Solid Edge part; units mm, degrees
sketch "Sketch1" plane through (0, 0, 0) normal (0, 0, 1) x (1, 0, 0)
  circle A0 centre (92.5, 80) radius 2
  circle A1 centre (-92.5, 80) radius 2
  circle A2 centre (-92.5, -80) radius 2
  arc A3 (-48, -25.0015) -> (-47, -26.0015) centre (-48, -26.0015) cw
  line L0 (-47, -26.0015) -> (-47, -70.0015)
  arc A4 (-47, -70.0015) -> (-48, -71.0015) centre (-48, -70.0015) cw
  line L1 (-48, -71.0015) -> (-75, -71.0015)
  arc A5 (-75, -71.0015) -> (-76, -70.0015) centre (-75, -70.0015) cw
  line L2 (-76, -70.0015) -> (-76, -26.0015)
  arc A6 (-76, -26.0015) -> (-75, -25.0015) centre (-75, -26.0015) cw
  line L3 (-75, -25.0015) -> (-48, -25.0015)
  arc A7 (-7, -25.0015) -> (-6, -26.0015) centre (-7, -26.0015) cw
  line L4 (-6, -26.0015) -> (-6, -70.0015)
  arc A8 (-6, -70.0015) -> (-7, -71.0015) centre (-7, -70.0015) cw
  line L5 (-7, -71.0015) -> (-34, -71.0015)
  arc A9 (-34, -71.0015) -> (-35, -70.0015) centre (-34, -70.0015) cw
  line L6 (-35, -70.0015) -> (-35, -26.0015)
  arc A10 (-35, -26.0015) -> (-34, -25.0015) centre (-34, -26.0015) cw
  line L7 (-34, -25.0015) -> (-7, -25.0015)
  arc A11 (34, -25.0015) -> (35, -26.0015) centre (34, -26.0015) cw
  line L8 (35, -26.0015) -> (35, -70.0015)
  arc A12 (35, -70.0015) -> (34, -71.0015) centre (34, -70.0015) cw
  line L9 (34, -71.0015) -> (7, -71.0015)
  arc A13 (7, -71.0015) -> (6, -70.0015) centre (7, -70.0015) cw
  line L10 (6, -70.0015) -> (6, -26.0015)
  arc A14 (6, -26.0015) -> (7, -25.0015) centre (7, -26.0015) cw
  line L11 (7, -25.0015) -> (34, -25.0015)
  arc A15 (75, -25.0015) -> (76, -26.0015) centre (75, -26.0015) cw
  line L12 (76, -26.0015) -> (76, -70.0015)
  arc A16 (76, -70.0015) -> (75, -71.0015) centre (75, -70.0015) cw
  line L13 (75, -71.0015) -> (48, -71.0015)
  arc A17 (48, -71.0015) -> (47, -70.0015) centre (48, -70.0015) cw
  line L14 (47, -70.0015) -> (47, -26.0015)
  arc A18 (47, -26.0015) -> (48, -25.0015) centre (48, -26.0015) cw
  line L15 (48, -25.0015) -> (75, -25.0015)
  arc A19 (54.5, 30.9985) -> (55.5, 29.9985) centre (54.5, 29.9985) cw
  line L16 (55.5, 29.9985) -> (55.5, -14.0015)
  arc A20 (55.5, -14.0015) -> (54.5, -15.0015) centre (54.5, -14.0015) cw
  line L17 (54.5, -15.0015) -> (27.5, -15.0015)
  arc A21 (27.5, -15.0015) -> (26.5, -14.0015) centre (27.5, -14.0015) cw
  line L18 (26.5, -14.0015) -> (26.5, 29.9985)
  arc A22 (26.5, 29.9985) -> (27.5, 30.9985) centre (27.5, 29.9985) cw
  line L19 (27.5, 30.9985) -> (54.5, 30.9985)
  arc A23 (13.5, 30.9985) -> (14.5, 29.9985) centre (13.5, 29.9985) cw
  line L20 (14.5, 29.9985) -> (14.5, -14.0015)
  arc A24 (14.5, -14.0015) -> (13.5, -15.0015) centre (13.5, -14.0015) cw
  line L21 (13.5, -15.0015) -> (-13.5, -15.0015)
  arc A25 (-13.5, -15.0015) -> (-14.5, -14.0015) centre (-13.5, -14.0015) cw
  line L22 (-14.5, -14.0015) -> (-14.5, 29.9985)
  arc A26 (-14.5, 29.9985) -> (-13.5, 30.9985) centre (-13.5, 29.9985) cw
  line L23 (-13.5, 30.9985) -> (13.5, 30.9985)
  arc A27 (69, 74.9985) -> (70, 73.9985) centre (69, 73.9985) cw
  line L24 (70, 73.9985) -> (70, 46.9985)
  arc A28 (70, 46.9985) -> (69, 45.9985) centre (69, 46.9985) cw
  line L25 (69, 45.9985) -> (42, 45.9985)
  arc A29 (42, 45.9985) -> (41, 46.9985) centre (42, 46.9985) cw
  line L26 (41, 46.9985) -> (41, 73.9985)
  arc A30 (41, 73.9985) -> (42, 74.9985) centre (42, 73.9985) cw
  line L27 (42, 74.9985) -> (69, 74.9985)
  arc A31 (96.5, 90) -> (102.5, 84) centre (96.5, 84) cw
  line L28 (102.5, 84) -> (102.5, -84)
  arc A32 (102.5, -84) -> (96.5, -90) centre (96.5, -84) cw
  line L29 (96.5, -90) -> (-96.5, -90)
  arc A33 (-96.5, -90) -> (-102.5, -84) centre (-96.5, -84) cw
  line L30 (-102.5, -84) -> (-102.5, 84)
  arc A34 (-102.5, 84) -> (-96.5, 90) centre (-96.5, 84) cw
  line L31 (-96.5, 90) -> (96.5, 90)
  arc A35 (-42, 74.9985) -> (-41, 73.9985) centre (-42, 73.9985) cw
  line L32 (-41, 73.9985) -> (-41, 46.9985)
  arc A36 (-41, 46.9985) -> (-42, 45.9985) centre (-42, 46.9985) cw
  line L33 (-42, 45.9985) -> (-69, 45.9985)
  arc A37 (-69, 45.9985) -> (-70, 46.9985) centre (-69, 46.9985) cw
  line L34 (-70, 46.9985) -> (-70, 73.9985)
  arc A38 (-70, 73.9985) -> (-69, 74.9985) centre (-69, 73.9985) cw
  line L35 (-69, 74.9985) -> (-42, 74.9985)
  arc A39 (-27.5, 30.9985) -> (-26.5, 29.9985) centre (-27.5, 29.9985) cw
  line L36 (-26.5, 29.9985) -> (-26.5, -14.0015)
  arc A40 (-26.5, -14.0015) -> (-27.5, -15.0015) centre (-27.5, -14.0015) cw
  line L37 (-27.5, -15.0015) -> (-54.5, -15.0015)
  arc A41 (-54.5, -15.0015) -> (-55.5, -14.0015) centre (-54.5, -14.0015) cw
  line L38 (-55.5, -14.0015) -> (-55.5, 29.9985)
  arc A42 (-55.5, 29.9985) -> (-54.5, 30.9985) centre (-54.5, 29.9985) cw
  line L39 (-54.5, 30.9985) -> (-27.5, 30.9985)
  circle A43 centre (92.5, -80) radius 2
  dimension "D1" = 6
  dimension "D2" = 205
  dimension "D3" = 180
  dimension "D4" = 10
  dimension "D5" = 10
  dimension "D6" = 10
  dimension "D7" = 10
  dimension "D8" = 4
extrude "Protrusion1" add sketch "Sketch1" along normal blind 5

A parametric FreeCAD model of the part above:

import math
import FreeCAD as App
import Part
import Sketcher

doc = App.newDocument("Part")
body = doc.addObject("PartDesign::Body", "Body")

# Sketch on XY plane
sketch1 = doc.addObject("Sketcher::SketchObject", "Sketch")
body.addObject(sketch1)
sketch1.AttachmentSupport = (doc.XY_Plane, [""])
sketch1.MapMode = "FlatFace"
sketch1.addGeometry([
    Part.ArcOfCircle(Part.Circle(App.Vector(96.5, 84, 0), App.Vector(0, 0, 1), 6), math.radians(0), math.radians(90)),  # 0
    Part.LineSegment(App.Vector(96.5, 90, 0), App.Vector(-96.5, 90, 0)),  # 1
    Part.ArcOfCircle(Part.Circle(App.Vector(-96.5, 84, 0), App.Vector(0, 0, 1), 6), math.radians(90), math.radians(180)),  # 2
    Part.LineSegment(App.Vector(-102.5, 84, 0), App.Vector(-102.5, -84, 0)),  # 3
    Part.ArcOfCircle(Part.Circle(App.Vector(-96.5, -84, 0), App.Vector(0, 0, 1), 6), math.radians(180), math.radians(270)),  # 4
    Part.LineSegment(App.Vector(-96.5, -90, 0), App.Vector(96.5, -90, 0)),  # 5
    Part.ArcOfCircle(Part.Circle(App.Vector(96.5, -84, 0), App.Vector(0, 0, 1), 6), math.radians(-90), math.radians(0)),  # 6
    Part.LineSegment(App.Vector(102.5, -84, 0), App.Vector(102.5, 84, 0)),  # 7
    Part.Circle(App.Vector(-92.5, -80, 0), App.Vector(0, 0, 1), 2),  # 8
    Part.LineSegment(App.Vector(-75, -25, 0), App.Vector(-48, -25, 0)),  # 9
    Part.ArcOfCircle(Part.Circle(App.Vector(-48, -26, 0), App.Vector(0, 0, 1), 1), math.radians(0), math.radians(90)),  # 10
    Part.LineSegment(App.Vector(-47, -26, 0), App.Vector(-47, -70, 0)),  # 11
    Part.ArcOfCircle(Part.Circle(App.Vector(-48, -70, 0), App.Vector(0, 0, 1), 1), math.radians(-90), math.radians(0)),  # 12
    Part.LineSegment(App.Vector(-48, -71, 0), App.Vector(-75, -71, 0)),  # 13
    Part.ArcOfCircle(Part.Circle(App.Vector(-75, -70, 0), App.Vector(0, 0, 1), 1), math.radians(180), math.radians(270)),  # 14
    Part.LineSegment(App.Vector(-76, -70, 0), App.Vector(-76, -26, 0)),  # 15
    Part.ArcOfCircle(Part.Circle(App.Vector(-75, -26, 0), App.Vector(0, 0, 1), 1), math.radians(90), math.radians(180)),  # 16
    Part.LineSegment(App.Vector(-34, -25, 0), App.Vector(-7, -25, 0)),  # 17
    Part.ArcOfCircle(Part.Circle(App.Vector(-7, -26, 0), App.Vector(0, 0, 1), 1), math.radians(0), math.radians(90)),  # 18
    Part.LineSegment(App.Vector(-6, -26, 0), App.Vector(-6, -70, 0)),  # 19
    Part.ArcOfCircle(Part.Circle(App.Vector(-7, -70, 0), App.Vector(0, 0, 1), 1), math.radians(-90), math.radians(0)),  # 20
    Part.LineSegment(App.Vector(-7, -71, 0), App.Vector(-34, -71, 0)),  # 21
    Part.ArcOfCircle(Part.Circle(App.Vector(-34, -70, 0), App.Vector(0, 0, 1), 1), math.radians(180), math.radians(270)),  # 22
    Part.LineSegment(App.Vector(-35, -70, 0), App.Vector(-35, -26, 0)),  # 23
    Part.ArcOfCircle(Part.Circle(App.Vector(-34, -26, 0), App.Vector(0, 0, 1), 1), math.radians(90), math.radians(180)),  # 24
    Part.LineSegment(App.Vector(7, -25, 0), App.Vector(34, -25, 0)),  # 25
    Part.ArcOfCircle(Part.Circle(App.Vector(34, -26, 0), App.Vector(0, 0, 1), 1), math.radians(0), math.radians(90)),  # 26
    Part.LineSegment(App.Vector(35, -26, 0), App.Vector(35, -70, 0)),  # 27
    Part.ArcOfCircle(Part.Circle(App.Vector(34, -70, 0), App.Vector(0, 0, 1), 1), math.radians(-90), math.radians(0)),  # 28
    Part.LineSegment(App.Vector(34, -71, 0), App.Vector(7, -71, 0)),  # 29
    Part.ArcOfCircle(Part.Circle(App.Vector(7, -70, 0), App.Vector(0, 0, 1), 1), math.radians(180), math.radians(270)),  # 30
    Part.LineSegment(App.Vector(6, -70, 0), App.Vector(6, -26, 0)),  # 31
    Part.ArcOfCircle(Part.Circle(App.Vector(7, -26, 0), App.Vector(0, 0, 1), 1), math.radians(90), math.radians(180)),  # 32
    Part.Circle(App.Vector(92.5, -80, 0), App.Vector(0, 0, 1), 2),  # 33
    Part.LineSegment(App.Vector(48, -25, 0), App.Vector(75, -25, 0)),  # 34
    Part.ArcOfCircle(Part.Circle(App.Vector(75, -26, 0), App.Vector(0, 0, 1), 1), math.radians(0), math.radians(90)),  # 35
    Part.LineSegment(App.Vector(76, -26, 0), App.Vector(76, -70, 0)),  # 36
    Part.ArcOfCircle(Part.Circle(App.Vector(75, -70, 0), App.Vector(0, 0, 1), 1), math.radians(-90), math.radians(0)),  # 37
    Part.LineSegment(App.Vector(75, -71, 0), App.Vector(48, -71, 0)),  # 38
    Part.ArcOfCircle(Part.Circle(App.Vector(48, -70, 0), App.Vector(0, 0, 1), 1), math.radians(180), math.radians(270)),  # 39
    Part.LineSegment(App.Vector(47, -70, 0), App.Vector(47, -26, 0)),  # 40
    Part.ArcOfCircle(Part.Circle(App.Vector(48, -26, 0), App.Vector(0, 0, 1), 1), math.radians(90), math.radians(180)),  # 41
    Part.LineSegment(App.Vector(-54.5, 31, 0), App.Vector(-27.5, 31, 0)),  # 42
    Part.ArcOfCircle(Part.Circle(App.Vector(-27.5, 30, 0), App.Vector(0, 0, 1), 1), math.radians(0), math.radians(90)),  # 43
    Part.LineSegment(App.Vector(-26.5, 30, 0), App.Vector(-26.5, -14, 0)),  # 44
    Part.ArcOfCircle(Part.Circle(App.Vector(-27.5, -14, 0), App.Vector(0, 0, 1), 1), math.radians(-90), math.radians(0)),  # 45
    Part.LineSegment(App.Vector(-27.5, -15, 0), App.Vector(-54.5, -15, 0)),  # 46
    Part.ArcOfCircle(Part.Circle(App.Vector(-54.5, -14, 0), App.Vector(0, 0, 1), 1), math.radians(180), math.radians(270)),  # 47
    Part.LineSegment(App.Vector(-55.5, -14, 0), App.Vector(-55.5, 30, 0)),  # 48
    Part.ArcOfCircle(Part.Circle(App.Vector(-54.5, 30, 0), App.Vector(0, 0, 1), 1), math.radians(90), math.radians(180)),  # 49
    Part.LineSegment(App.Vector(-69, 75, 0), App.Vector(-42, 75, 0)),  # 50
    Part.ArcOfCircle(Part.Circle(App.Vector(-42, 74, 0), App.Vector(0, 0, 1), 1), math.radians(0), math.radians(90)),  # 51
    Part.LineSegment(App.Vector(-41, 74, 0), App.Vector(-41, 47, 0)),  # 52
    Part.ArcOfCircle(Part.Circle(App.Vector(-42, 47, 0), App.Vector(0, 0, 1), 1), math.radians(-90), math.radians(0)),  # 53
    Part.LineSegment(App.Vector(-42, 46, 0), App.Vector(-69, 46, 0)),  # 54
    Part.ArcOfCircle(Part.Circle(App.Vector(-69, 47, 0), App.Vector(0, 0, 1), 1), math.radians(180), math.radians(270)),  # 55
    Part.LineSegment(App.Vector(-70, 47, 0), App.Vector(-70, 74, 0)),  # 56
    Part.ArcOfCircle(Part.Circle(App.Vector(-69, 74, 0), App.Vector(0, 0, 1), 1), math.radians(90), math.radians(180)),  # 57
    Part.Circle(App.Vector(-92.5, 80, 0), App.Vector(0, 0, 1), 2),  # 58
    Part.LineSegment(App.Vector(-13.5, 31, 0), App.Vector(13.5, 31, 0)),  # 59
    Part.ArcOfCircle(Part.Circle(App.Vector(13.5, 30, 0), App.Vector(0, 0, 1), 1), math.radians(0), math.radians(90)),  # 60
    Part.LineSegment(App.Vector(14.5, 30, 0), App.Vector(14.5, -14, 0)),  # 61
    Part.ArcOfCircle(Part.Circle(App.Vector(13.5, -14, 0), App.Vector(0, 0, 1), 1), math.radians(-90), math.radians(0)),  # 62
    Part.LineSegment(App.Vector(13.5, -15, 0), App.Vector(-13.5, -15, 0)),  # 63
    Part.ArcOfCircle(Part.Circle(App.Vector(-13.5, -14, 0), App.Vector(0, 0, 1), 1), math.radians(180), math.radians(270)),  # 64
    Part.LineSegment(App.Vector(-14.5, -14, 0), App.Vector(-14.5, 30, 0)),  # 65
    Part.ArcOfCircle(Part.Circle(App.Vector(-13.5, 30, 0), App.Vector(0, 0, 1), 1), math.radians(90), math.radians(180)),  # 66
    Part.LineSegment(App.Vector(27.5, 31, 0), App.Vector(54.5, 31, 0)),  # 67
    Part.ArcOfCircle(Part.Circle(App.Vector(54.5, 30, 0), App.Vector(0, 0, 1), 1), math.radians(0), math.radians(90)),  # 68
    Part.LineSegment(App.Vector(55.5, 30, 0), App.Vector(55.5, -14, 0)),  # 69
    Part.ArcOfCircle(Part.Circle(App.Vector(54.5, -14, 0), App.Vector(0, 0, 1), 1), math.radians(-90), math.radians(0)),  # 70
    Part.LineSegment(App.Vector(54.5, -15, 0), App.Vector(27.5, -15, 0)),  # 71
    Part.ArcOfCircle(Part.Circle(App.Vector(27.5, -14, 0), App.Vector(0, 0, 1), 1), math.radians(180), math.radians(270)),  # 72
    Part.LineSegment(App.Vector(26.5, -14, 0), App.Vector(26.5, 30, 0)),  # 73
    Part.ArcOfCircle(Part.Circle(App.Vector(27.5, 30, 0), App.Vector(0, 0, 1), 1), math.radians(90), math.radians(180)),  # 74
    Part.LineSegment(App.Vector(42, 75, 0), App.Vector(69, 75, 0)),  # 75
    Part.ArcOfCircle(Part.Circle(App.Vector(69, 74, 0), App.Vector(0, 0, 1), 1), math.radians(0), math.radians(90)),  # 76
    Part.LineSegment(App.Vector(70, 74, 0), App.Vector(70, 47, 0)),  # 77
    Part.ArcOfCircle(Part.Circle(App.Vector(69, 47, 0), App.Vector(0, 0, 1), 1), math.radians(-90), math.radians(0)),  # 78
    Part.LineSegment(App.Vector(69, 46, 0), App.Vector(42, 46, 0)),  # 79
    Part.ArcOfCircle(Part.Circle(App.Vector(42, 47, 0), App.Vector(0, 0, 1), 1), math.radians(180), math.radians(270)),  # 80
    Part.LineSegment(App.Vector(41, 47, 0), App.Vector(41, 74, 0)),  # 81
    Part.ArcOfCircle(Part.Circle(App.Vector(42, 74, 0), App.Vector(0, 0, 1), 1), math.radians(90), math.radians(180)),  # 82
    Part.Circle(App.Vector(92.5, 80, 0), App.Vector(0, 0, 1), 2),  # 83
], False)
sketch1.addConstraint([
    Sketcher.Constraint("Tangent", 0, 2, 1, 1),
    Sketcher.Constraint("Tangent", 1, 2, 2, 1),
    Sketcher.Constraint("Tangent", 2, 2, 3, 1),
    Sketcher.Constraint("Tangent", 3, 2, 4, 1),
    Sketcher.Constraint("Tangent", 4, 2, 5, 1),
    Sketcher.Constraint("Tangent", 5, 2, 6, 1),
    Sketcher.Constraint("Tangent", 6, 2, 7, 1),
    Sketcher.Constraint("Tangent", 7, 2, 0, 1),
    Sketcher.Constraint("Tangent", 9, 2, 10, 2),
    Sketcher.Constraint("Tangent", 10, 1, 11, 1),
    Sketcher.Constraint("Tangent", 11, 2, 12, 2),
    Sketcher.Constraint("Tangent", 12, 1, 13, 1),
    Sketcher.Constraint("Tangent", 13, 2, 14, 2),
    Sketcher.Constraint("Tangent", 14, 1, 15, 1),
    Sketcher.Constraint("Tangent", 15, 2, 16, 2),
    Sketcher.Constraint("Tangent", 16, 1, 9, 1),
    Sketcher.Constraint("Tangent", 17, 2, 18, 2),
    Sketcher.Constraint("Tangent", 18, 1, 19, 1),
    Sketcher.Constraint("Tangent", 19, 2, 20, 2),
    Sketcher.Constraint("Tangent", 20, 1, 21, 1),
    Sketcher.Constraint("Tangent", 21, 2, 22, 2),
    Sketcher.Constraint("Tangent", 22, 1, 23, 1),
    Sketcher.Constraint("Tangent", 23, 2, 24, 2),
    Sketcher.Constraint("Tangent", 24, 1, 17, 1),
    Sketcher.Constraint("Tangent", 25, 2, 26, 2),
    Sketcher.Constraint("Tangent", 26, 1, 27, 1),
    Sketcher.Constraint("Tangent", 27, 2, 28, 2),
    Sketcher.Constraint("Tangent", 28, 1, 29, 1),
    Sketcher.Constraint("Tangent", 29, 2, 30, 2),
    Sketcher.Constraint("Tangent", 30, 1, 31, 1),
    Sketcher.Constraint("Tangent", 31, 2, 32, 2),
    Sketcher.Constraint("Tangent", 32, 1, 25, 1),
    Sketcher.Constraint("Tangent", 34, 2, 35, 2),
    Sketcher.Constraint("Tangent", 35, 1, 36, 1),
    Sketcher.Constraint("Tangent", 36, 2, 37, 2),
    Sketcher.Constraint("Tangent", 37, 1, 38, 1),
    Sketcher.Constraint("Tangent", 38, 2, 39, 2),
    Sketcher.Constraint("Tangent", 39, 1, 40, 1),
    Sketcher.Constraint("Tangent", 40, 2, 41, 2),
    Sketcher.Constraint("Tangent", 41, 1, 34, 1),
    Sketcher.Constraint("Tangent", 42, 2, 43, 2),
    Sketcher.Constraint("Tangent", 43, 1, 44, 1),
    Sketcher.Constraint("Tangent", 44, 2, 45, 2),
    Sketcher.Constraint("Tangent", 45, 1, 46, 1),
    Sketcher.Constraint("Tangent", 46, 2, 47, 2),
    Sketcher.Constraint("Tangent", 47, 1, 48, 1),
    Sketcher.Constraint("Tangent", 48, 2, 49, 2),
    Sketcher.Constraint("Tangent", 49, 1, 42, 1),
    Sketcher.Constraint("Tangent", 50, 2, 51, 2),
    Sketcher.Constraint("Tangent", 51, 1, 52, 1),
    Sketcher.Constraint("Tangent", 52, 2, 53, 2),
    Sketcher.Constraint("Tangent", 53, 1, 54, 1),
    Sketcher.Constraint("Tangent", 54, 2, 55, 2),
    Sketcher.Constraint("Tangent", 55, 1, 56, 1),
    Sketcher.Constraint("Tangent", 56, 2, 57, 2),
    Sketcher.Constraint("Tangent", 57, 1, 50, 1),
    Sketcher.Constraint("Tangent", 59, 2, 60, 2),
    Sketcher.Constraint("Tangent", 60, 1, 61, 1),
    Sketcher.Constraint("Tangent", 61, 2, 62, 2),
    Sketcher.Constraint("Tangent", 62, 1, 63, 1),
    Sketcher.Constraint("Tangent", 63, 2, 64, 2),
    Sketcher.Constraint("Tangent", 64, 1, 65, 1),
    Sketcher.Constraint("Tangent", 65, 2, 66, 2),
    Sketcher.Constraint("Tangent", 66, 1, 59, 1),
    Sketcher.Constraint("Tangent", 67, 2, 68, 2),
    Sketcher.Constraint("Tangent", 68, 1, 69, 1),
    Sketcher.Constraint("Tangent", 69, 2, 70, 2),
    Sketcher.Constraint("Tangent", 70, 1, 71, 1),
    Sketcher.Constraint("Tangent", 71, 2, 72, 2),
    Sketcher.Constraint("Tangent", 72, 1, 73, 1),
    Sketcher.Constraint("Tangent", 73, 2, 74, 2),
    Sketcher.Constraint("Tangent", 74, 1, 67, 1),
    Sketcher.Constraint("Tangent", 75, 2, 76, 2),
    Sketcher.Constraint("Tangent", 76, 1, 77, 1),
    Sketcher.Constraint("Tangent", 77, 2, 78, 2),
    Sketcher.Constraint("Tangent", 78, 1, 79, 1),
    Sketcher.Constraint("Tangent", 79, 2, 80, 2),
    Sketcher.Constraint("Tangent", 80, 1, 81, 1),
    Sketcher.Constraint("Tangent", 81, 2, 82, 2),
    Sketcher.Constraint("Tangent", 82, 1, 75, 1),
    Sketcher.Constraint("Horizontal", 1),
    Sketcher.Constraint("Vertical", 3),
    Sketcher.Constraint("Horizontal", 5),
    Sketcher.Constraint("Vertical", 7),
    Sketcher.Constraint("Horizontal", 9),
    Sketcher.Constraint("Vertical", 11),
    Sketcher.Constraint("Horizontal", 13),
    Sketcher.Constraint("Vertical", 15),
    Sketcher.Constraint("Horizontal", 17),
    Sketcher.Constraint("Vertical", 19),
    Sketcher.Constraint("Horizontal", 21),
    Sketcher.Constraint("Vertical", 23),
    Sketcher.Constraint("Horizontal", 25),
    Sketcher.Constraint("Vertical", 27),
    Sketcher.Constraint("Horizontal", 29),
    Sketcher.Constraint("Vertical", 31),
    Sketcher.Constraint("Horizontal", 34),
    Sketcher.Constraint("Vertical", 36),
    Sketcher.Constraint("Horizontal", 38),
    Sketcher.Constraint("Vertical", 40),
    Sketcher.Constraint("Horizontal", 42),
    Sketcher.Constraint("Vertical", 44),
    Sketcher.Constraint("Horizontal", 46),
    Sketcher.Constraint("Vertical", 48),
    Sketcher.Constraint("Horizontal", 50),
    Sketcher.Constraint("Vertical", 52),
    Sketcher.Constraint("Horizontal", 54),
    Sketcher.Constraint("Vertical", 56),
    Sketcher.Constraint("Horizontal", 59),
    Sketcher.Constraint("Vertical", 61),
    Sketcher.Constraint("Horizontal", 63),
    Sketcher.Constraint("Vertical", 65),
    Sketcher.Constraint("Horizontal", 67),
    Sketcher.Constraint("Vertical", 69),
    Sketcher.Constraint("Horizontal", 71),
    Sketcher.Constraint("Vertical", 73),
    Sketcher.Constraint("Horizontal", 75),
    Sketcher.Constraint("Vertical", 77),
    Sketcher.Constraint("Horizontal", 79),
    Sketcher.Constraint("Vertical", 81),
    Sketcher.Constraint("Equal", 0, 2),
    Sketcher.Constraint("Equal", 2, 4),
    Sketcher.Constraint("Equal", 4, 6),
    Sketcher.Constraint("Equal", 10, 12),
    Sketcher.Constraint("Equal", 12, 14),
    Sketcher.Constraint("Equal", 14, 16),
    Sketcher.Constraint("Equal", 16, 18),
    Sketcher.Constraint("Equal", 18, 20),
    Sketcher.Constraint("Equal", 20, 22),
    Sketcher.Constraint("Equal", 22, 24),
    Sketcher.Constraint("Equal", 24, 26),
    Sketcher.Constraint("Equal", 26, 28),
    Sketcher.Constraint("Equal", 28, 30),
    Sketcher.Constraint("Equal", 30, 32),
    Sketcher.Constraint("Equal", 8, 33),
    Sketcher.Constraint("Equal", 32, 35),
    Sketcher.Constraint("Equal", 35, 37),
    Sketcher.Constraint("Equal", 37, 39),
    Sketcher.Constraint("Equal", 39, 41),
    Sketcher.Constraint("Equal", 41, 43),
    Sketcher.Constraint("Equal", 43, 45),
    Sketcher.Constraint("Equal", 45, 47),
    Sketcher.Constraint("Equal", 47, 49),
    Sketcher.Constraint("Equal", 49, 51),
    Sketcher.Constraint("Equal", 51, 53),
    Sketcher.Constraint("Equal", 53, 55),
    Sketcher.Constraint("Equal", 55, 57),
    Sketcher.Constraint("Equal", 33, 58),
    Sketcher.Constraint("Equal", 57, 60),
    Sketcher.Constraint("Equal", 60, 62),
    Sketcher.Constraint("Equal", 62, 64),
    Sketcher.Constraint("Equal", 64, 66),
    Sketcher.Constraint("Equal", 66, 68),
    Sketcher.Constraint("Equal", 68, 70),
    Sketcher.Constraint("Equal", 70, 72),
    Sketcher.Constraint("Equal", 72, 74),
    Sketcher.Constraint("Equal", 74, 76),
    Sketcher.Constraint("Equal", 76, 78),
    Sketcher.Constraint("Equal", 78, 80),
    Sketcher.Constraint("Equal", 80, 82),
    Sketcher.Constraint("Equal", 58, 83),
    Sketcher.Constraint("Symmetric", 0, 3, 4, 3, -1, 1),
    Sketcher.Constraint("Symmetric", 33, 3, 58, 3, -1, 1),
    Sketcher.Constraint("Symmetric", 8, 3, 83, 3, -1, 1),
    Sketcher.Constraint("Symmetric", 24, 3, 26, 3, -2),
    Sketcher.Constraint("Symmetric", 20, 3, 30, 3, -2),
    Sketcher.Constraint("Symmetric", 8, 3, 33, 3, -2),
    Sketcher.Constraint("Symmetric", 16, 3, 35, 3, -2),
    Sketcher.Constraint("Symmetric", 12, 3, 39, 3, -2),
    Sketcher.Constraint("Symmetric", 49, 3, 68, 3, -2),
    Sketcher.Constraint("Symmetric", 45, 3, 72, 3, -2),
    Sketcher.Constraint("Symmetric", 57, 3, 76, 3, -2),
    Sketcher.Constraint("Symmetric", 53, 3, 80, 3, -2),
    Sketcher.Constraint("Horizontal", 16, 3, 18, 3),
    Sketcher.Constraint("Horizontal", 14, 3, 20, 3),
    Sketcher.Constraint("Horizontal", 49, 3, 60, 3),
    Sketcher.Constraint("Horizontal", 47, 3, 62, 3),
    Sketcher.Constraint("Equal", 13, 17),
    Sketcher.Constraint("Equal", 38, 42),
    Sketcher.Constraint("Equal", 46, 50),
    Sketcher.Constraint("Equal", 54, 59),
    Sketcher.Constraint("Equal", 40, 44),
    Sketcher.Constraint("Equal", 79, 52),
    Sketcher.Constraint("Diameter", 8, 4.0),
    Sketcher.Constraint("Radius", 0, 6.0),
    Sketcher.Constraint("Radius", 10, 1.0),
    Sketcher.Constraint("DistanceX", 8, 3, -1, 1, 92.5),
    Sketcher.Constraint("DistanceX", 1, 2, 1, 1, 193.0),
    Sketcher.Constraint("DistanceX", 9, 1, 9, 2, 27.0),
    Sketcher.Constraint("DistanceY", 3, 2, 3, 1, 168.0),
    Sketcher.Constraint("DistanceY", 11, 2, 11, 1, 44.0),
    Sketcher.Constraint("DistanceY", 8, 3, -1, 1, 80.0),
    Sketcher.Constraint("DistanceX", 10, 3, -1, 1, 48.0),
    Sketcher.Constraint("DistanceX", 18, 3, -1, 1, 7.0),
    Sketcher.Constraint("DistanceX", 51, 3, -1, 1, 42.0),
    Sketcher.Constraint("DistanceX", 43, 3, -1, 1, 27.5),
    Sketcher.Constraint("DistanceX", -1, 1, 60, 3, 13.5),
    Sketcher.Constraint("DistanceY", 10, 3, -1, 1, 26.0015),
    Sketcher.Constraint("DistanceY", -1, 1, 43, 3, 29.9985),
    Sketcher.Constraint("DistanceY", -1, 1, 51, 3, 73.9985),
])
pad1 = doc.addObject("PartDesign::Pad", "Pad")
body.addObject(pad1)
pad1.Profile = sketch1
pad1.Length = 5

doc.recompute()
